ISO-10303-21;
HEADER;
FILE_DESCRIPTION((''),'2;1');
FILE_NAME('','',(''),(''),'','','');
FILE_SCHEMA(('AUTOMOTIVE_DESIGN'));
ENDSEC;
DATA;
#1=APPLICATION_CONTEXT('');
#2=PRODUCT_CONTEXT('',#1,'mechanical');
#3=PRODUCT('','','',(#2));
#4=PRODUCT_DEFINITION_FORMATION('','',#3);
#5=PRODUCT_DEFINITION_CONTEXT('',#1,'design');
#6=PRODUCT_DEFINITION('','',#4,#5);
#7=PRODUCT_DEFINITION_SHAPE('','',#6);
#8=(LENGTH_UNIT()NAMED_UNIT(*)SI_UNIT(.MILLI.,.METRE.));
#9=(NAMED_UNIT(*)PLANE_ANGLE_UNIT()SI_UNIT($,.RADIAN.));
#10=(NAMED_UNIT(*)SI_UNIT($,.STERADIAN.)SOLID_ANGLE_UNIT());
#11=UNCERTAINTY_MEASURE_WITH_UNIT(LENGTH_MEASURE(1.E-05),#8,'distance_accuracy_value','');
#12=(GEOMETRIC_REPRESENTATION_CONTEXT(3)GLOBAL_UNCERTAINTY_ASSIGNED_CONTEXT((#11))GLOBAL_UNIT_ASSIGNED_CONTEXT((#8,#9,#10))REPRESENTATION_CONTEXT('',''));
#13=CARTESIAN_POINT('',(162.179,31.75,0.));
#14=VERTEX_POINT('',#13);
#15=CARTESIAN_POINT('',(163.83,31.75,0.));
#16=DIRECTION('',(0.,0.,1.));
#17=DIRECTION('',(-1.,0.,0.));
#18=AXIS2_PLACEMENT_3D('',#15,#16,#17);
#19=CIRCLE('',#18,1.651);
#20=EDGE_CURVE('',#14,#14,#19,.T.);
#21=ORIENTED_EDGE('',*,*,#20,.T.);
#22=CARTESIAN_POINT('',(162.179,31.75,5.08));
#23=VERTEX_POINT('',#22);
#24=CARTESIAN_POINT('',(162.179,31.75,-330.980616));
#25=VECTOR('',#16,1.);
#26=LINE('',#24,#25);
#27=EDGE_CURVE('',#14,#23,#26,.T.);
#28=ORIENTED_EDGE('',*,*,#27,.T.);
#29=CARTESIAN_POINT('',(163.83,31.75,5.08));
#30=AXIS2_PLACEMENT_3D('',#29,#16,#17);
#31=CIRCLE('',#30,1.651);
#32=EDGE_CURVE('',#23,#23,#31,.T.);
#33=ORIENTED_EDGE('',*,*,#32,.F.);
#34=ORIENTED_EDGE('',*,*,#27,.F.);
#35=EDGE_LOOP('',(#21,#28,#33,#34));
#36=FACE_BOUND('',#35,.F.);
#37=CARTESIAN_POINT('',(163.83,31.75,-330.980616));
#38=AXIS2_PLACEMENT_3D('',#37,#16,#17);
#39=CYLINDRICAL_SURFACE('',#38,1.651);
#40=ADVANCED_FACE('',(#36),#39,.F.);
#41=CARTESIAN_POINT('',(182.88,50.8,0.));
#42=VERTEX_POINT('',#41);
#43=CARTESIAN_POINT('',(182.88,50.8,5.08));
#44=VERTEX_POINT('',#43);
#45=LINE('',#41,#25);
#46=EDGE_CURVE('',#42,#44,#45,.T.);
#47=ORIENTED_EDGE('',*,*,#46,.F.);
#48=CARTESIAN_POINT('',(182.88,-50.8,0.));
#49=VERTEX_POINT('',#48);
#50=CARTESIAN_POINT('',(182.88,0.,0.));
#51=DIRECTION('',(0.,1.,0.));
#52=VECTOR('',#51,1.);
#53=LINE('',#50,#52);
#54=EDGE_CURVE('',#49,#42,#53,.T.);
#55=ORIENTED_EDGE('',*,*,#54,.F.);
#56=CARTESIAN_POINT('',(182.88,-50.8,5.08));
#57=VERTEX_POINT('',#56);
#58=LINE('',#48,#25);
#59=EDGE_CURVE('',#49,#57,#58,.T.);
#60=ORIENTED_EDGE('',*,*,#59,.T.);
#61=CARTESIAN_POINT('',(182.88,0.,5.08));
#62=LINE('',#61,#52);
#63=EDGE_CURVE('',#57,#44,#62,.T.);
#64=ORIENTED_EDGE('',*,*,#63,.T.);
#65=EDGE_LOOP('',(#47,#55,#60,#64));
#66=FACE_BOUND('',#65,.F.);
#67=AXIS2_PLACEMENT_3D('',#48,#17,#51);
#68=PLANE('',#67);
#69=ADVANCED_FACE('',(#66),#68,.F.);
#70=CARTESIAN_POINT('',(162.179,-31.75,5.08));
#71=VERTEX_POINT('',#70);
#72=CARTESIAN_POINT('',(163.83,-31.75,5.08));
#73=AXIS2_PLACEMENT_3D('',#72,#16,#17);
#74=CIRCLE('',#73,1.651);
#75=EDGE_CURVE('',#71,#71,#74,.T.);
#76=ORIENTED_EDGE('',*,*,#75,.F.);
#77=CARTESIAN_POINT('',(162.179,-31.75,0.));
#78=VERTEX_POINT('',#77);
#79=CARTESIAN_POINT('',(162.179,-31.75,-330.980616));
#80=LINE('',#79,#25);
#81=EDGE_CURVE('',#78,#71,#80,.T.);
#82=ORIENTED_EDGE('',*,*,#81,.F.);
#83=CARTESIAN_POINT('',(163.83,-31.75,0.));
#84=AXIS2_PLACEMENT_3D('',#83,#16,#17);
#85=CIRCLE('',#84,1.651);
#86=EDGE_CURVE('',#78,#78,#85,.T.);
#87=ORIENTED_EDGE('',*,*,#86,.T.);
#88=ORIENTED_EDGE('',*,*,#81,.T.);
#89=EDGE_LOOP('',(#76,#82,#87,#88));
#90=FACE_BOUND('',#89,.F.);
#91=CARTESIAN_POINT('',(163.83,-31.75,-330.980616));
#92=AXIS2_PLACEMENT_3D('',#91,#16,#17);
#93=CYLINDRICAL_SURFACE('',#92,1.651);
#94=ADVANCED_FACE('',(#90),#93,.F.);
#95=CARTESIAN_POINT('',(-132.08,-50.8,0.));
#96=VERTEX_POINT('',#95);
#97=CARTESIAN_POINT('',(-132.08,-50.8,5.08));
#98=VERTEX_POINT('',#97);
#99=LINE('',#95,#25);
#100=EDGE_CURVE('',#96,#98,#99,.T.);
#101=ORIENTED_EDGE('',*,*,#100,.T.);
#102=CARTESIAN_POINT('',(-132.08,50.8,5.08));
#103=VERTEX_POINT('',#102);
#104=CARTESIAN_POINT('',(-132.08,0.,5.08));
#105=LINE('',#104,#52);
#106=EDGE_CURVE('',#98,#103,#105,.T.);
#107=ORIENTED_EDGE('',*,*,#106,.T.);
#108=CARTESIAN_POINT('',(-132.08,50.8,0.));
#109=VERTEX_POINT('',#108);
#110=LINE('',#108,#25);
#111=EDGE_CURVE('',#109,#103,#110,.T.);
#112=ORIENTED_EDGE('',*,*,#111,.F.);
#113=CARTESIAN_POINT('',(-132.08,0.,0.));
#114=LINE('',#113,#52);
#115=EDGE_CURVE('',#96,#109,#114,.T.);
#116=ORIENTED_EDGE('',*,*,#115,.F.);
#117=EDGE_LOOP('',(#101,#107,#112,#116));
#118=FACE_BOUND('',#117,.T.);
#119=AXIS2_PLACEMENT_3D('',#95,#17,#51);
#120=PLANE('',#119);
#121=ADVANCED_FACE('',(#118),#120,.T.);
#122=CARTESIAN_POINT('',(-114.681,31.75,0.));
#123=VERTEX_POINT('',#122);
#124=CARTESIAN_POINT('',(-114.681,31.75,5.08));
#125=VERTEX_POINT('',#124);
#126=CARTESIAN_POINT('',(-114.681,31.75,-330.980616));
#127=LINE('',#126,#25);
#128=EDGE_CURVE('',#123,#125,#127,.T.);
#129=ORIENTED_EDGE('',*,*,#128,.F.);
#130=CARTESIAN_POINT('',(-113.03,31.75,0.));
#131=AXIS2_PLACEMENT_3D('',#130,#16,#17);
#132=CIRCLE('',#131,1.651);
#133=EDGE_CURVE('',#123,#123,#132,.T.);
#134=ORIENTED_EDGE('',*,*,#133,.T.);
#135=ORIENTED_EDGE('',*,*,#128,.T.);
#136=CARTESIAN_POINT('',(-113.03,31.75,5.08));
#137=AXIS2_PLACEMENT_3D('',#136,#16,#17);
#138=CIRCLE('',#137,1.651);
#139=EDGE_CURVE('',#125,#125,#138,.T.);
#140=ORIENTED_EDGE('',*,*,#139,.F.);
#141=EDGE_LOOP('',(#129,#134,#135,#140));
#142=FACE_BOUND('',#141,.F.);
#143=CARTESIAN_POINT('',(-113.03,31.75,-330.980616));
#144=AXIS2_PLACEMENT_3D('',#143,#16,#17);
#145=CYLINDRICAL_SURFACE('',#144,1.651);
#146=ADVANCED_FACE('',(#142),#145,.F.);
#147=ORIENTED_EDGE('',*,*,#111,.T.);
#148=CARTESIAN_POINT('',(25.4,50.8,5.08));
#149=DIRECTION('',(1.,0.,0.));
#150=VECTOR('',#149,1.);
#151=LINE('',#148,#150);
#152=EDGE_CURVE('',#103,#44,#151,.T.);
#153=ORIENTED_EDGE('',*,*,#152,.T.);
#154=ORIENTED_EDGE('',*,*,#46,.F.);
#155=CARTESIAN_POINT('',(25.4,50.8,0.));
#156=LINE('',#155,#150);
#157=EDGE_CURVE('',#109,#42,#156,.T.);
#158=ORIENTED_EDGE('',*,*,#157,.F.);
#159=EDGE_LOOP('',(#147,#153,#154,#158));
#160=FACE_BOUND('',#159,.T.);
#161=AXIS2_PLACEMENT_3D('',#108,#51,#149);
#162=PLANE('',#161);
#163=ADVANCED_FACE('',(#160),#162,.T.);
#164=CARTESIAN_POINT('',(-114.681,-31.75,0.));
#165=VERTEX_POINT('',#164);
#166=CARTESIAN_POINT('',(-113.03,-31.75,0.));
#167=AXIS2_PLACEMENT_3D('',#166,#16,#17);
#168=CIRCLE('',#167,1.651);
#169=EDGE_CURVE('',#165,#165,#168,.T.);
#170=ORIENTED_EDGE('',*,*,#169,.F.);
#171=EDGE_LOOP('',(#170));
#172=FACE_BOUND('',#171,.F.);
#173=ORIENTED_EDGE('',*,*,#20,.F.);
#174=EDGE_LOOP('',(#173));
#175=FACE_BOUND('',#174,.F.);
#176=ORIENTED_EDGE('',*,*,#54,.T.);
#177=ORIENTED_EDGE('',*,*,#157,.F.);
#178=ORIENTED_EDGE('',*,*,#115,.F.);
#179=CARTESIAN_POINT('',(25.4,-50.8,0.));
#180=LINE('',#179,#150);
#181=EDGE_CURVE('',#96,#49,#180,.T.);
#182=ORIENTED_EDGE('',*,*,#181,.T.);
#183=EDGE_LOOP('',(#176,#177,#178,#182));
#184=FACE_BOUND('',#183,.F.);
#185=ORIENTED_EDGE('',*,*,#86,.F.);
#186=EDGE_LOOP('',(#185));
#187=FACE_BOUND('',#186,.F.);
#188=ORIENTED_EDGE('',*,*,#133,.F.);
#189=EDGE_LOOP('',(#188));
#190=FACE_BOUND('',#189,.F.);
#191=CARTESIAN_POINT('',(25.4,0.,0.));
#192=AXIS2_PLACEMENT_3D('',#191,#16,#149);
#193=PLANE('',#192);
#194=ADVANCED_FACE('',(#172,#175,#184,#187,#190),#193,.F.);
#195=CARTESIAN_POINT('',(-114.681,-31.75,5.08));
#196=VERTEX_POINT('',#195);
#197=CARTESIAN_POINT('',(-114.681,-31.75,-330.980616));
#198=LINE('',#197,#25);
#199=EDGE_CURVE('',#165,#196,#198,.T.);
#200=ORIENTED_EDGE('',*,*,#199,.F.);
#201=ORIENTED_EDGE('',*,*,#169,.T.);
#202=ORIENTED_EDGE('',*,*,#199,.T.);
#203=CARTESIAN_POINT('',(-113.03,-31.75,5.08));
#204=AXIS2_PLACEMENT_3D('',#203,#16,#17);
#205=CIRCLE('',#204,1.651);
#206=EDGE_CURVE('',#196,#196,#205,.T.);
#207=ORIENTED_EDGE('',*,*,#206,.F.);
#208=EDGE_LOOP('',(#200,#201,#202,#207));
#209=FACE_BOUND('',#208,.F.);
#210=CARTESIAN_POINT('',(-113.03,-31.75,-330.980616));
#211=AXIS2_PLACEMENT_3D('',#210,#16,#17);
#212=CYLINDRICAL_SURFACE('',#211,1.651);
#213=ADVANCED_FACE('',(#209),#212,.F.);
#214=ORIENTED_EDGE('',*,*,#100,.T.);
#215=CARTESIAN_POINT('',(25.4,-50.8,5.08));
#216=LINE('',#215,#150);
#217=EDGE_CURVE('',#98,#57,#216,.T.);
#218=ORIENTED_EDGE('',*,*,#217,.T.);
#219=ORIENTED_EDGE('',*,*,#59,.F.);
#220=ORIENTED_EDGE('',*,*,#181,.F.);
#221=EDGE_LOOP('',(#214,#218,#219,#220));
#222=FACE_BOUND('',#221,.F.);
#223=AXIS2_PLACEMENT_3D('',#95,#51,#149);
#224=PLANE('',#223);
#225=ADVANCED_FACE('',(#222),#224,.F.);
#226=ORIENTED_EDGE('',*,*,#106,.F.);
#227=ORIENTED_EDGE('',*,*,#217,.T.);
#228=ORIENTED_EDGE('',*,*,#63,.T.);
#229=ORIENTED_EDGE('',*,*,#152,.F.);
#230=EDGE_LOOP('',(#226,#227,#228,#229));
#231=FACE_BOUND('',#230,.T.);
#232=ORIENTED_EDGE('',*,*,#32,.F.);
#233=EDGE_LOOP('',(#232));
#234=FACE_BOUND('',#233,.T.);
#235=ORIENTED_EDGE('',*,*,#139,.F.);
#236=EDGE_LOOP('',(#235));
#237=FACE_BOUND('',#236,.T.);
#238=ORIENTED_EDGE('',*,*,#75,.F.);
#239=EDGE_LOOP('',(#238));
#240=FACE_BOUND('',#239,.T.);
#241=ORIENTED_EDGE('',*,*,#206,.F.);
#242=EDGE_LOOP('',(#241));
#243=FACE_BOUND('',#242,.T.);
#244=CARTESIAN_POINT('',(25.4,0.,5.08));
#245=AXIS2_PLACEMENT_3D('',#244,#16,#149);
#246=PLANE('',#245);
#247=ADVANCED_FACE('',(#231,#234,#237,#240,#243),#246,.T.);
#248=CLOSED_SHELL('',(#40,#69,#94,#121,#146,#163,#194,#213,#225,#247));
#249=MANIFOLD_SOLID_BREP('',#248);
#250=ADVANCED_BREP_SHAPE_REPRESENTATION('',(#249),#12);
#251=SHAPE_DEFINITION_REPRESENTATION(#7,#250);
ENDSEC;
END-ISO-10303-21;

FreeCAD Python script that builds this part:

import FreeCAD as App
import Part
import Sketcher
from FreeCAD import Vector
Q = App.Units.Quantity

doc = App.newDocument("Part")
body = doc.addObject("PartDesign::Body", "Body")

# Sketch on XY plane
sketch1 = body.newObject("Sketcher::SketchObject", "Sketch")
sketch1.AttachmentSupport = (doc.getObject("XY_Plane"), [""])
sketch1.MapMode = "FlatFace"
sketch1.addGeometry([
    Part.LineSegment(Vector(-132, 51, 0), Vector(-132, -51, 0)),
    Part.LineSegment(Vector(-132, -51, 0), Vector(183, -51, 0)),
    Part.LineSegment(Vector(183, -51, 0), Vector(183, 51, 0)),
    Part.LineSegment(Vector(183, 51, 0), Vector(-132, 51, 0)),
], False)
sketch1.addConstraint([
    Sketcher.Constraint("Coincident", 0, 2, 1, 1),
    Sketcher.Constraint("Coincident", 1, 2, 2, 1),
    Sketcher.Constraint("Coincident", 2, 2, 3, 1),
    Sketcher.Constraint("Coincident", 3, 2, 0, 1),
    Sketcher.Constraint("Vertical", 0),
    Sketcher.Constraint("Horizontal", 1),
    Sketcher.Constraint("Vertical", 2),
    Sketcher.Constraint("Horizontal", 3),
    Sketcher.Constraint("DistanceY", 0, 2, 0, 1, Q("4 in")),
    Sketcher.Constraint("DistanceX", 1, 1, 1, 2, Q("12.4 in")),
    Sketcher.Constraint("DistanceY", 0, 2, -1, 1, Q("2 in")),
    Sketcher.Constraint("DistanceX", 0, 2, -1, 1, Q("5.2 in")),
])
pad1 = body.newObject("PartDesign::Pad", "Pad")
pad1.Profile = sketch1
pad1.Length = Q("0.2 in")

# Sketch on XY plane
sketch2 = body.newObject("Sketcher::SketchObject", "Sketch001")
sketch2.AttachmentSupport = (doc.getObject("XY_Plane"), [""])
sketch2.MapMode = "FlatFace"
sketch2.addGeometry([
    Part.Circle(Vector(-113, -31.8, 0), Vector(0, 0, 1), 1.7),
    Part.Circle(Vector(-113, 31.8, 0), Vector(0, 0, 1), 1.7),
    Part.Circle(Vector(163.8, 31.8, 0), Vector(0, 0, 1), 1.7),
    Part.Circle(Vector(163.8, -31.8, 0), Vector(0, 0, 1), 1.7),
], False)
sketch2.addConstraint([
    Sketcher.Constraint("Equal", 0, 1),
    Sketcher.Constraint("Equal", 1, 2),
    Sketcher.Constraint("Equal", 2, 3),
    Sketcher.Constraint("Symmetric", 0, 3, 1, 3, -1),
    Sketcher.Constraint("Symmetric", 2, 3, 3, 3, -1),
    Sketcher.Constraint("Horizontal", 1, 3, 2, 3),
    Sketcher.Constraint("Diameter", 0, Q("0.13 in")),
    Sketcher.Constraint("DistanceY", 0, 3, 1, 3, Q("2.5 in")),
    Sketcher.Constraint("DistanceX", 1, 3, 2, 3, Q("10.9 in")),
    Sketcher.Constraint("DistanceX", 0, 3, -1, 1, Q("4.45 in")),
])
doc.recompute()
hole = body.newObject("PartDesign::Hole", "Hole")
hole.Profile = sketch2
hole.ThreadType = "None"
hole.Diameter = Q("0.13 in")
hole.DepthType = "ThroughAll"
hole.Reversed = True

doc.recompute()
